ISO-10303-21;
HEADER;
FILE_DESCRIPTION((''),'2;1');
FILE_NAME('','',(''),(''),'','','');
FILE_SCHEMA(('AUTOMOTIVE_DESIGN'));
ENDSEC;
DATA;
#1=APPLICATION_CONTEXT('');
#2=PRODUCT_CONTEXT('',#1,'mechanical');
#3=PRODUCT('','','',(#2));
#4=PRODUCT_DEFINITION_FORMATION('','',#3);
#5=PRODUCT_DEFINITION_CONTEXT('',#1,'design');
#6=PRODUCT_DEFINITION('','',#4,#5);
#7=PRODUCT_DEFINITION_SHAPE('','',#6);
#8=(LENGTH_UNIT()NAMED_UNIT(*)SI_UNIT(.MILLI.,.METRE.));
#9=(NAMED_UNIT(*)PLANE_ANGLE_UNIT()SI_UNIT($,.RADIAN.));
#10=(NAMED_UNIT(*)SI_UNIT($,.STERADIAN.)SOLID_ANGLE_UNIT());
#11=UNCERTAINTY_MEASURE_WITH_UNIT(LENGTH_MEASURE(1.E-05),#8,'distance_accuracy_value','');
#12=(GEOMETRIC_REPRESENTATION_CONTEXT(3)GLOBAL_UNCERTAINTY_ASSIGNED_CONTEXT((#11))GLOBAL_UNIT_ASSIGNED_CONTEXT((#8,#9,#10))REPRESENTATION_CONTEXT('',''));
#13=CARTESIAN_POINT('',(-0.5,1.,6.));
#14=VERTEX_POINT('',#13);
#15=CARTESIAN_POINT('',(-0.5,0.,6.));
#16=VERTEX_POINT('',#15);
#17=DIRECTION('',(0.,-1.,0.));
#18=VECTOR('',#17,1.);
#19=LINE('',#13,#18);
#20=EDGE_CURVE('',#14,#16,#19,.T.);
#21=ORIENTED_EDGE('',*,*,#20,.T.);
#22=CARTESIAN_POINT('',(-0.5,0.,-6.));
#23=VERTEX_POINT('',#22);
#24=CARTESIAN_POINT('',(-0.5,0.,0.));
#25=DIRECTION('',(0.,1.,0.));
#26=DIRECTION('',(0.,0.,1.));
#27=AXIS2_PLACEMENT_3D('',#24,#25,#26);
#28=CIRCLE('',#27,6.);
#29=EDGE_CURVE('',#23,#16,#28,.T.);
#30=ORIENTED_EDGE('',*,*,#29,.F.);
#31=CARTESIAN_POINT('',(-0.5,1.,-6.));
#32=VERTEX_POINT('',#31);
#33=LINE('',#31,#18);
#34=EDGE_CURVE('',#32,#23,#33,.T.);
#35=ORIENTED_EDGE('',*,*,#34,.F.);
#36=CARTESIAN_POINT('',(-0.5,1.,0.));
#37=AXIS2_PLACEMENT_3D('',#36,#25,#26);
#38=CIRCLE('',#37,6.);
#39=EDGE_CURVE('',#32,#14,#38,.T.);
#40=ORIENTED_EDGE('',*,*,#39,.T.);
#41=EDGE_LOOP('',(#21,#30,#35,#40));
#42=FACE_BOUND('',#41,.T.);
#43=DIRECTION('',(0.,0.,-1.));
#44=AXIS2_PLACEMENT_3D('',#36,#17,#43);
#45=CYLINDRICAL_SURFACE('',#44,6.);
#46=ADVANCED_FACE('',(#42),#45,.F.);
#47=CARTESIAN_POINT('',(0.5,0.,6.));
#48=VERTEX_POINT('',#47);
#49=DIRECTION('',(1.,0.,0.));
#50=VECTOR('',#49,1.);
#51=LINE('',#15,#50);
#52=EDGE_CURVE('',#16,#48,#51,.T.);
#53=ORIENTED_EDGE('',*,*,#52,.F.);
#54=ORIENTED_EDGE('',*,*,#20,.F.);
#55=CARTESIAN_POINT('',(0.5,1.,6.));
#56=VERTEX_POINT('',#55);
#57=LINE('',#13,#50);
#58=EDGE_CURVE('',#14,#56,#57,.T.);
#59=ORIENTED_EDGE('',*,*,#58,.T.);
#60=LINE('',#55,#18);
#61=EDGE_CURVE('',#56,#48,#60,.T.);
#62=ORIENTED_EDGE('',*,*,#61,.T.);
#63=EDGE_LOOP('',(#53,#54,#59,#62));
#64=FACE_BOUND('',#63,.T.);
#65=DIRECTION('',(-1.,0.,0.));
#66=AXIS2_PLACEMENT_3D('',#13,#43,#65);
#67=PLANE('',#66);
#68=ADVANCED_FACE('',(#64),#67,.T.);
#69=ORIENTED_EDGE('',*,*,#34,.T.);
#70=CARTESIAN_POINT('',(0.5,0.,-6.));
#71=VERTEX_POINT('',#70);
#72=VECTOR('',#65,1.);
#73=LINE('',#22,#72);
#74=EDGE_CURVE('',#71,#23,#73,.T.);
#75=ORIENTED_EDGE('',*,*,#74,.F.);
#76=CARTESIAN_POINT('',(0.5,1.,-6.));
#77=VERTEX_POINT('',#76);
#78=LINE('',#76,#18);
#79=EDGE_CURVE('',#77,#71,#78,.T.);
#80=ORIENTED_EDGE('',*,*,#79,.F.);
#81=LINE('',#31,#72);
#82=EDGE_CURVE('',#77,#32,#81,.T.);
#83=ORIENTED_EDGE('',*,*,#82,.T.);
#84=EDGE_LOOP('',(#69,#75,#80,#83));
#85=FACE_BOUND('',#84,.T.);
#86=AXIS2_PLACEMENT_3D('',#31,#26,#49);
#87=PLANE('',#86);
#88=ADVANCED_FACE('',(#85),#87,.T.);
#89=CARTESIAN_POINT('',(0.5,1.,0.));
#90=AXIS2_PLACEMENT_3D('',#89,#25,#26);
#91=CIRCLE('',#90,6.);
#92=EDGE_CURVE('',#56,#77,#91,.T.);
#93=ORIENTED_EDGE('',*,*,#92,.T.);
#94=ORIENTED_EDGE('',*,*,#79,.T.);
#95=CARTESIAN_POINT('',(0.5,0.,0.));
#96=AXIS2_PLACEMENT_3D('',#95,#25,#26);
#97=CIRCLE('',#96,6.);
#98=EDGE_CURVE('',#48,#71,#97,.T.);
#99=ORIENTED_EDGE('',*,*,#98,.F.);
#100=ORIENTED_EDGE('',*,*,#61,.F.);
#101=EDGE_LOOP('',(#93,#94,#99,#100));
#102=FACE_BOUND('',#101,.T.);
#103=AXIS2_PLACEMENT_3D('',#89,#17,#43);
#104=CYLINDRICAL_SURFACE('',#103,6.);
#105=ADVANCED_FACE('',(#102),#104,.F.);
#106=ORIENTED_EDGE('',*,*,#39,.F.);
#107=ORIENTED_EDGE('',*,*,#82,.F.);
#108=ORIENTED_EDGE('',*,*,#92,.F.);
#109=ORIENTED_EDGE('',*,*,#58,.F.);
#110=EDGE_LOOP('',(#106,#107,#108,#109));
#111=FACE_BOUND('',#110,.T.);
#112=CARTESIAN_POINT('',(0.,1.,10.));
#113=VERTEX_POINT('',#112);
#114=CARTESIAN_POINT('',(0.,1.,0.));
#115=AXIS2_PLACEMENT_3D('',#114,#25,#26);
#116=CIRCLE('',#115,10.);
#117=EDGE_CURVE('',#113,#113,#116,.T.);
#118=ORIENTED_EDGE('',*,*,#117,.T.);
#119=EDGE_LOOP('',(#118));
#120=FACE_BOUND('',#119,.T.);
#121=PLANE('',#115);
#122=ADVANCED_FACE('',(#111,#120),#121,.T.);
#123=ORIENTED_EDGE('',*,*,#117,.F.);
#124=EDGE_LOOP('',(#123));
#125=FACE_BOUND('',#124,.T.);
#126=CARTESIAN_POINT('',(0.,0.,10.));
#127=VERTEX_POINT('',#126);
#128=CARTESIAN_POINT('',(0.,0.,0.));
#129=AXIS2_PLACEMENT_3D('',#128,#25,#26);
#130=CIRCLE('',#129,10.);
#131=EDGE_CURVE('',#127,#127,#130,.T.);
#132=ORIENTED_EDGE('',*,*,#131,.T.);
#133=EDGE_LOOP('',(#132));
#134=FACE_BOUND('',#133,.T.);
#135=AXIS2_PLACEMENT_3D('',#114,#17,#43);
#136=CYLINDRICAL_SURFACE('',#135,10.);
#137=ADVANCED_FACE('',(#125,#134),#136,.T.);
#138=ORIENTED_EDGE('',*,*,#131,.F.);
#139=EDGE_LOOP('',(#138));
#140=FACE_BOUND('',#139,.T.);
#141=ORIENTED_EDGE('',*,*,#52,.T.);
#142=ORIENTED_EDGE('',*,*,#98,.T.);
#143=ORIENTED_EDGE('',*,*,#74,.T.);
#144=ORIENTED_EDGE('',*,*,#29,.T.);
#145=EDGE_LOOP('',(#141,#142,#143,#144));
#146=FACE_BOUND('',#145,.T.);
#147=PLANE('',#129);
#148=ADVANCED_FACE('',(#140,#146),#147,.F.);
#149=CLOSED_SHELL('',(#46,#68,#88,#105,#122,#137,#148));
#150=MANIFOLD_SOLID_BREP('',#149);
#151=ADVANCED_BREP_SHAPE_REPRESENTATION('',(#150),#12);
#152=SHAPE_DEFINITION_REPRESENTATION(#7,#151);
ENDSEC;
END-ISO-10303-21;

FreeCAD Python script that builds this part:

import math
import FreeCAD as App
import Part
import Sketcher
Q = App.Units.Quantity

doc = App.newDocument("Part")
body = doc.addObject("PartDesign::Body", "Body")

sketch1 = doc.addObject("Sketcher::SketchObject", "Sketch")
body.addObject(sketch1)
sketch1.AttachmentSupport = (doc.XZ_Plane, [""])
sketch1.MapMode = "FlatFace"
sketch1.addGeometry(Part.Circle(App.Vector(0, 0, 0), App.Vector(0, 0, 1), 10), False)
sketch1.addGeometry(Part.ArcOfCircle(Part.Circle(App.Vector(-0.5, 0, 0), App.Vector(0, 0, 1), 6), math.radians(90), math.radians(270)), False)
sketch1.addGeometry(Part.LineSegment(App.Vector(-0.5, -6, 0), App.Vector(0.5, -6, 0)), False)
sketch1.addGeometry(Part.ArcOfCircle(Part.Circle(App.Vector(0.5, 0, 0), App.Vector(0, 0, 1), 6), math.radians(-90), math.radians(90)), False)
sketch1.addGeometry(Part.LineSegment(App.Vector(0.5, 6, 0), App.Vector(-0.5, 6, 0)), False)
sketch1.addConstraint(Sketcher.Constraint("Tangent", 1, 2, 2, 1))
sketch1.addConstraint(Sketcher.Constraint("Tangent", 2, 2, 3, 1))
sketch1.addConstraint(Sketcher.Constraint("Tangent", 3, 2, 4, 1))
sketch1.addConstraint(Sketcher.Constraint("Tangent", 4, 2, 1, 1))
sketch1.addConstraint(Sketcher.Constraint("Horizontal", 2))
sketch1.addConstraint(Sketcher.Constraint("Horizontal", 4))
sketch1.addConstraint(Sketcher.Constraint("Coincident", 0, 3, -1, 1))
sketch1.addConstraint(Sketcher.Constraint("Symmetric", 1, 3, 3, 3, -1, 1))
sketch1.addConstraint(Sketcher.Constraint("Diameter", 0, Q("20 mm")))
sketch1.addConstraint(Sketcher.Constraint("Radius", 1, Q("6 mm")))
sketch1.addConstraint(Sketcher.Constraint("DistanceX", 2, 1, 2, 2, Q("1 mm")))
pad1 = doc.addObject("PartDesign::Pad", "Pad")
body.addObject(pad1)
pad1.Profile = sketch1
pad1.Length = 1
pad1.Reversed = True

doc.recompute()
